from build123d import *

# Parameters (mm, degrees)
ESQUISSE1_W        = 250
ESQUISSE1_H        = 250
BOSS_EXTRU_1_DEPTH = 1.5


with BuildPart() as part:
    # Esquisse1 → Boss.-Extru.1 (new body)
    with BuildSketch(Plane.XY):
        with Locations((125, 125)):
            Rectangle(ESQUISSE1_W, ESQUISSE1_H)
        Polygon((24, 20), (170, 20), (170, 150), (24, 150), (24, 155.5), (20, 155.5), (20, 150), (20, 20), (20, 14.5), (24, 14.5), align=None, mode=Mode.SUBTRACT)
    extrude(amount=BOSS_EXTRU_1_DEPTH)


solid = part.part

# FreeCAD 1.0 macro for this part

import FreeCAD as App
import Part
import Sketcher
from FreeCAD import Vector

doc = App.newDocument("Part")
params = doc.addObject("Spreadsheet::Sheet", "Params")
for row, (alias, value) in enumerate([
    ("sketch1_width", "250 mm"),
    ("sketch1_width2", "146 mm"),
    ("sketch1_width3", "4 mm"),
    ("sketch1_height", "141 mm"),
    ("sketch1_height2", "130 mm"),
    ("pad1_length", "1.5 mm"),
], start=1):
    params.set(f"A{row}", alias)
    params.set(f"B{row}", "=" + value)
    params.setAlias(f"B{row}", alias)

body = doc.addObject("PartDesign::Body", "Body")

sketch1 = doc.addObject("Sketcher::SketchObject", "Sketch")
body.addObject(sketch1)
sketch1.AttachmentSupport = (doc.XY_Plane, [""])
sketch1.MapMode = "FlatFace"
sketch1.addGeometry([
    Part.LineSegment(Vector(0, 250, 0), Vector(0, 0, 0)),
    Part.LineSegment(Vector(0, 0, 0), Vector(250, 0, 0)),
    Part.LineSegment(Vector(250, 0, 0), Vector(250, 250, 0)),
    Part.LineSegment(Vector(250, 250, 0), Vector(0, 250, 0)),
    Part.LineSegment(Vector(170, 20, 0), Vector(24, 20, 0)),
    Part.LineSegment(Vector(24, 20, 0), Vector(24, 14.5, 0)),
    Part.LineSegment(Vector(24, 14.5, 0), Vector(20, 14.5, 0)),
    Part.LineSegment(Vector(20, 14.5, 0), Vector(20, 155.5, 0)),
    Part.LineSegment(Vector(20, 155.5, 0), Vector(24, 155.5, 0)),
    Part.LineSegment(Vector(24, 155.5, 0), Vector(24, 150, 0)),
    Part.LineSegment(Vector(24, 150, 0), Vector(170, 150, 0)),
    Part.LineSegment(Vector(170, 150, 0), Vector(170, 20, 0)),
], False)
sketch1.addConstraint([
    Sketcher.Constraint("Coincident", 0, 2, 1, 1),
    Sketcher.Constraint("Coincident", 1, 2, 2, 1),
    Sketcher.Constraint("Coincident", 2, 2, 3, 1),
    Sketcher.Constraint("Coincident", 3, 2, 0, 1),
    Sketcher.Constraint("Coincident", 4, 2, 5, 1),
    Sketcher.Constraint("Coincident", 5, 2, 6, 1),
    Sketcher.Constraint("Coincident", 6, 2, 7, 1),
    Sketcher.Constraint("Coincident", 7, 2, 8, 1),
    Sketcher.Constraint("Coincident", 8, 2, 9, 1),
    Sketcher.Constraint("Coincident", 9, 2, 10, 1),
    Sketcher.Constraint("Coincident", 10, 2, 11, 1),
    Sketcher.Constraint("Coincident", 11, 2, 4, 1),
    Sketcher.Constraint("Vertical", 0),
    Sketcher.Constraint("Horizontal", 1),
    Sketcher.Constraint("Vertical", 2),
    Sketcher.Constraint("Horizontal", 3),
    Sketcher.Constraint("Horizontal", 4),
    Sketcher.Constraint("Vertical", 5),
    Sketcher.Constraint("Horizontal", 6),
    Sketcher.Constraint("Vertical", 7),
    Sketcher.Constraint("Horizontal", 8),
    Sketcher.Constraint("Vertical", 9),
    Sketcher.Constraint("Horizontal", 10),
    Sketcher.Constraint("Vertical", 11),
    Sketcher.Constraint("Coincident", 0, 2, -1, 1),
    Sketcher.Constraint("Vertical", 5, 2, 8, 2),
    Sketcher.Constraint("Equal", 3, 0),
    Sketcher.Constraint("Equal", 5, 9),
    Sketcher.Constraint("DistanceX", 1, 1, 1, 2, 250.0),
    Sketcher.Constraint("DistanceX", 4, 2, 4, 1, 146.0),
    Sketcher.Constraint("DistanceX", 6, 2, 6, 1, 4.0),
    Sketcher.Constraint("DistanceY", 7, 1, 7, 2, 141.0),
    Sketcher.Constraint("DistanceY", 11, 2, 11, 1, 130.0),
    Sketcher.Constraint("DistanceX", -1, 1, 4, 2, 24.0),
    Sketcher.Constraint("DistanceY", -1, 1, 4, 2, 20.0),
])
sketch1.setExpression("Constraints[28]", "Params.sketch1_width")
sketch1.setExpression("Constraints[29]", "Params.sketch1_width2")
sketch1.setExpression("Constraints[30]", "Params.sketch1_width3")
sketch1.setExpression("Constraints[31]", "Params.sketch1_height")
sketch1.setExpression("Constraints[32]", "Params.sketch1_height2")
pad1 = doc.addObject("PartDesign::Pad", "Pad")
body.addObject(pad1)
pad1.Profile = sketch1
pad1.setExpression("Length", "Params.pad1_length")

doc.recompute()
